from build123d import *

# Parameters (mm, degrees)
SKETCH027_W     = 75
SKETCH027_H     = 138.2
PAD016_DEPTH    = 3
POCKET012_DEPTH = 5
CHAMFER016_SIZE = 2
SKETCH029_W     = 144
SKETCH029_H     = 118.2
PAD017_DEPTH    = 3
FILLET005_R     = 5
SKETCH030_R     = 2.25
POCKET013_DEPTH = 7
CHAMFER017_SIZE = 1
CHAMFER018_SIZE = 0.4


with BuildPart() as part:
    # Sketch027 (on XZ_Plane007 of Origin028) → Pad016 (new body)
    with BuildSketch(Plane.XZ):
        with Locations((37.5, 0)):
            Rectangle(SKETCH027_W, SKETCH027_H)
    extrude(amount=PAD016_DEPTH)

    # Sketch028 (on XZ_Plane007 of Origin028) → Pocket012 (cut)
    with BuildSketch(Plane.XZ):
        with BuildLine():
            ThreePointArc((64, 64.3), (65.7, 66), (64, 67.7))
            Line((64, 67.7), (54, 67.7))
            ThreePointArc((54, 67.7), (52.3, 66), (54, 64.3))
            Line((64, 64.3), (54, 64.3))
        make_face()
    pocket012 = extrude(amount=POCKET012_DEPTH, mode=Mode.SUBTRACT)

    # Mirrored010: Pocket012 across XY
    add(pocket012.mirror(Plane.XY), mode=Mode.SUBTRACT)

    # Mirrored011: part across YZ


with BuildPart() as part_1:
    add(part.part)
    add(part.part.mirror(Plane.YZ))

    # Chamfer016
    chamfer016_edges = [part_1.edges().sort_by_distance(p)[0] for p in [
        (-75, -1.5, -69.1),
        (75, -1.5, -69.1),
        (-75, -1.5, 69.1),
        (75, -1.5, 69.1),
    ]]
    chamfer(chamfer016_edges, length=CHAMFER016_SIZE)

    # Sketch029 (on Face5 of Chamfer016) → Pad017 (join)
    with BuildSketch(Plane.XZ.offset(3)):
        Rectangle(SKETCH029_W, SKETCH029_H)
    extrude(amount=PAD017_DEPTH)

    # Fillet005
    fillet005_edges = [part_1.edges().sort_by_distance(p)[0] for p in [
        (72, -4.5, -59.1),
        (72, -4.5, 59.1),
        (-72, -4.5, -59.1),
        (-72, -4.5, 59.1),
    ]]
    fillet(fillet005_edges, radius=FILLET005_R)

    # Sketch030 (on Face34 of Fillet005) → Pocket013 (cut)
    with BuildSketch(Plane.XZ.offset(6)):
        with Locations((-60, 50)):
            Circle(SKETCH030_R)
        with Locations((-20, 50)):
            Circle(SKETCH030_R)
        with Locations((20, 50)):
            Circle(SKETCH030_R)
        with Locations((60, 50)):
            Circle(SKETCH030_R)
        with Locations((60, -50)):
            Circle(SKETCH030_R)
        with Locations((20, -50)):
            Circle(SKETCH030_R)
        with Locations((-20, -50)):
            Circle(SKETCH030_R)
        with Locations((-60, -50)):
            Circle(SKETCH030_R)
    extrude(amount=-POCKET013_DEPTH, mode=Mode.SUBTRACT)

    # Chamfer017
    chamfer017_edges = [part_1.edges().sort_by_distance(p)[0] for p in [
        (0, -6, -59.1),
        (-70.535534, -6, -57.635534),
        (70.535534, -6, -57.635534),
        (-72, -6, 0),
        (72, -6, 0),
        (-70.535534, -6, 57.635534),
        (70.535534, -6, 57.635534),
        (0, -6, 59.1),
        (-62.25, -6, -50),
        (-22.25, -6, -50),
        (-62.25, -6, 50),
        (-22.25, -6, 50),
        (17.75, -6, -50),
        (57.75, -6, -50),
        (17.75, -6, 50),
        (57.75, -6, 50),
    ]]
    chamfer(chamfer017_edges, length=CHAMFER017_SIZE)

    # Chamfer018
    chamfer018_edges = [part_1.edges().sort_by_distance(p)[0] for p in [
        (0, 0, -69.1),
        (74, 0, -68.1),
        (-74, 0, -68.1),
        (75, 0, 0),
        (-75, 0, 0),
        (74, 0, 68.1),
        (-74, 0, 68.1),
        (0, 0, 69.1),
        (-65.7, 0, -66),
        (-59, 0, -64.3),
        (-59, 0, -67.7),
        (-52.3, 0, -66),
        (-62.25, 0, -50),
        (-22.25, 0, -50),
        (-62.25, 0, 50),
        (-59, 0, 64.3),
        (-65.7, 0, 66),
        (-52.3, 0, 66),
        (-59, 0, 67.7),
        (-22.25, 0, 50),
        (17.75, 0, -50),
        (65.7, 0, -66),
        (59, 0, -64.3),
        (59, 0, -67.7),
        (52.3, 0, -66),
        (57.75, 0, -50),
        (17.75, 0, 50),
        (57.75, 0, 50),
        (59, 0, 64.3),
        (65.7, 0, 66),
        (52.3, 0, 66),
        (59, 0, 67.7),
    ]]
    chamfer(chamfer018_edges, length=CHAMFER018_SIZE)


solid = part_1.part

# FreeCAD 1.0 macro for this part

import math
import FreeCAD as App
import Part
import Sketcher


def edges_at(feature, points):
    """Names of the edges that pass closest to the given points."""
    edges = feature.Shape.Edges
    near = lambda p: min(range(len(edges)), key=lambda i: edges[i].distToShape(Part.Vertex(*p))[0])
    return sorted({f"Edge{near(p) + 1}" for p in points})

doc = App.newDocument("Part")
body = doc.addObject("PartDesign::Body", "Body")

# Sketch on XZ plane
sketch1 = doc.addObject("Sketcher::SketchObject", "Sketch")
body.addObject(sketch1)
sketch1.AttachmentSupport = (doc.XZ_Plane, [""])
sketch1.MapMode = "FlatFace"
sketch1.addGeometry([
    Part.LineSegment(App.Vector(0, 69.1, 0), App.Vector(0, -69.1, 0)),
    Part.LineSegment(App.Vector(0, -69.1, 0), App.Vector(75, -69.1, 0)),
    Part.LineSegment(App.Vector(75, -69.1, 0), App.Vector(75, 69.1, 0)),
    Part.LineSegment(App.Vector(75, 69.1, 0), App.Vector(0, 69.1, 0)),
], False)
sketch1.addConstraint([
    Sketcher.Constraint("Coincident", 0, 2, 1, 1),
    Sketcher.Constraint("Coincident", 1, 2, 2, 1),
    Sketcher.Constraint("Coincident", 2, 2, 3, 1),
    Sketcher.Constraint("Coincident", 3, 2, 0, 1),
    Sketcher.Constraint("Vertical", 0),
    Sketcher.Constraint("Horizontal", 1),
    Sketcher.Constraint("Vertical", 2),
    Sketcher.Constraint("Horizontal", 3),
    Sketcher.Constraint("Symmetric", 0, 2, 3, 2, -1, 1),
    Sketcher.Constraint("DistanceX", 1, 1, 1, 2, 75.0),
    Sketcher.Constraint("DistanceY", 0, 2, 0, 1, 138.2),
])
pad1 = doc.addObject("PartDesign::Pad", "Pad")
body.addObject(pad1)
pad1.Profile = sketch1
pad1.Length = 3

# Sketch on XZ plane
sketch2 = doc.addObject("Sketcher::SketchObject", "Sketch001")
body.addObject(sketch2)
sketch2.AttachmentSupport = (doc.XZ_Plane, [""])
sketch2.MapMode = "FlatFace"
sketch2.addGeometry([
    Part.ArcOfCircle(Part.Circle(App.Vector(64, 66, 0), App.Vector(0, 0, 1), 1.7), math.radians(-90), math.radians(90)),
    Part.LineSegment(App.Vector(64, 67.7, 0), App.Vector(54, 67.7, 0)),
    Part.ArcOfCircle(Part.Circle(App.Vector(54, 66, 0), App.Vector(0, 0, 1), 1.7), math.radians(90), math.radians(270)),
    Part.LineSegment(App.Vector(54, 64.3, 0), App.Vector(64, 64.3, 0)),
], False)
sketch2.addConstraint([
    Sketcher.Constraint("Tangent", 0, 2, 1, 1),
    Sketcher.Constraint("Tangent", 1, 2, 2, 1),
    Sketcher.Constraint("Tangent", 2, 2, 3, 1),
    Sketcher.Constraint("Tangent", 3, 2, 0, 1),
    Sketcher.Constraint("Horizontal", 1),
    Sketcher.Constraint("Horizontal", 3),
    Sketcher.Constraint("Radius", 0, 1.7),
    Sketcher.Constraint("DistanceX", 1, 2, 1, 1, 10.0),
    Sketcher.Constraint("DistanceX", -1, 1, 0, 3, 64.0),
    Sketcher.Constraint("DistanceY", -1, 1, 0, 3, 66.0),
])
pocket1 = doc.addObject("PartDesign::Pocket", "Pocket")
body.addObject(pocket1)
pocket1.Profile = sketch2
pocket1.Length = 5
pocket1.Reversed = True
doc.recompute()

mirrored = doc.addObject("PartDesign::Mirrored", "Mirrored")
body.addObject(mirrored)
mirrored.Originals = [pocket1]
mirrored.MirrorPlane = (doc.XY_Plane, [""])
body.Tip = mirrored
body2 = doc.addObject("PartDesign::Body", "Body001")
doc.recompute()

body2.BaseFeature = body
doc.recompute()

mirroring = doc.addObject("Part::Mirroring", "Mirroring")
mirroring.Source = body
mirroring.Base = App.Vector(0, 0, 0)
mirroring.Normal = App.Vector(1, 0, 0)
body3 = doc.addObject("PartDesign::Body", "Body002")
body3.BaseFeature = mirroring
boolean = doc.addObject("PartDesign::Boolean", "Boolean")
body2.addObject(boolean)
boolean.Type = "Fuse"
boolean.addObjects([body3])
doc.recompute()

chamfer = doc.addObject("PartDesign::Chamfer", "Chamfer")
body2.addObject(chamfer)
chamfer.Base = (boolean, edges_at(boolean, [
    (-75, -1.5, -69.1),
    (75, -1.5, -69.1),
    (-75, -1.5, 69.1),
    (75, -1.5, 69.1),
]))
chamfer.Size = 2

# Sketch on XZ plane
sketch3 = doc.addObject("Sketcher::SketchObject", "Sketch002")
body2.addObject(sketch3)
sketch3.AttachmentSupport = (doc.getObject("XZ_Plane001"), [""])
sketch3.MapMode = "FlatFace"
sketch3.AttachmentOffset = App.Placement(App.Vector(0, 0, 3), App.Rotation())
sketch3.addGeometry([
    Part.LineSegment(App.Vector(-72, 59.1, 0), App.Vector(-72, -59.1, 0)),
    Part.LineSegment(App.Vector(-72, -59.1, 0), App.Vector(72, -59.1, 0)),
    Part.LineSegment(App.Vector(72, -59.1, 0), App.Vector(72, 59.1, 0)),
    Part.LineSegment(App.Vector(72, 59.1, 0), App.Vector(-72, 59.1, 0)),
], False)
sketch3.addConstraint([
    Sketcher.Constraint("Coincident", 0, 2, 1, 1),
    Sketcher.Constraint("Coincident", 1, 2, 2, 1),
    Sketcher.Constraint("Coincident", 2, 2, 3, 1),
    Sketcher.Constraint("Coincident", 3, 2, 0, 1),
    Sketcher.Constraint("Vertical", 0),
    Sketcher.Constraint("Horizontal", 1),
    Sketcher.Constraint("Vertical", 2),
    Sketcher.Constraint("Horizontal", 3),
    Sketcher.Constraint("Symmetric", 0, 2, 2, 2, -1, 1),
    Sketcher.Constraint("DistanceX", 1, 1, 1, 2, 144.0),
    Sketcher.Constraint("DistanceY", 0, 2, 0, 1, 118.2),
])
pad2 = doc.addObject("PartDesign::Pad", "Pad001")
body2.addObject(pad2)
pad2.Profile = sketch3
pad2.Length = 3
doc.recompute()

fillet = doc.addObject("PartDesign::Fillet", "Fillet")
body2.addObject(fillet)
fillet.Base = (pad2, edges_at(pad2, [
    (72, -4.5, -59.1),
    (72, -4.5, 59.1),
    (-72, -4.5, -59.1),
    (-72, -4.5, 59.1),
]))
fillet.Radius = 5

# Sketch on XZ plane
sketch4 = doc.addObject("Sketcher::SketchObject", "Sketch003")
body2.addObject(sketch4)
sketch4.AttachmentSupport = (doc.getObject("XZ_Plane001"), [""])
sketch4.MapMode = "FlatFace"
sketch4.AttachmentOffset = App.Placement(App.Vector(0, 0, 6), App.Rotation())
sketch4.addGeometry([
    Part.Circle(App.Vector(-60, 50, 0), App.Vector(0, 0, 1), 2.25),  # 0
    Part.Circle(App.Vector(-20, 50, 0), App.Vector(0, 0, 1), 2.25),  # 1
    Part.Circle(App.Vector(20, 50, 0), App.Vector(0, 0, 1), 2.25),  # 2
    Part.Circle(App.Vector(60, 50, 0), App.Vector(0, 0, 1), 2.25),  # 3
    Part.Circle(App.Vector(60, -50, 0), App.Vector(0, 0, 1), 2.25),  # 4
    Part.Circle(App.Vector(20, -50, 0), App.Vector(0, 0, 1), 2.25),  # 5
    Part.Circle(App.Vector(-20, -50, 0), App.Vector(0, 0, 1), 2.25),  # 6
    Part.Circle(App.Vector(-60, -50, 0), App.Vector(0, 0, 1), 2.25),  # 7
], False)
sketch4.addConstraint([
    Sketcher.Constraint("Equal", 0, 1),
    Sketcher.Constraint("Equal", 1, 2),
    Sketcher.Constraint("Equal", 2, 3),
    Sketcher.Constraint("Equal", 3, 4),
    Sketcher.Constraint("Equal", 4, 5),
    Sketcher.Constraint("Equal", 5, 6),
    Sketcher.Constraint("Equal", 6, 7),
    Sketcher.Constraint("Symmetric", 0, 3, 4, 3, -1, 1),
    Sketcher.Constraint("Symmetric", 1, 3, 5, 3, -1, 1),
    Sketcher.Constraint("Symmetric", 2, 3, 6, 3, -1, 1),
    Sketcher.Constraint("Symmetric", 3, 3, 7, 3, -1, 1),
    Sketcher.Constraint("Symmetric", 1, 3, 2, 3, -2),
    Sketcher.Constraint("Symmetric", 0, 3, 3, 3, -2),
    Sketcher.Constraint("Horizontal", 0, 3, 1, 3),
    Sketcher.Constraint("Diameter", 0, 4.5),
    Sketcher.Constraint("DistanceX", 0, 3, -1, 1, 60.0),
    Sketcher.Constraint("DistanceY", -1, 1, 0, 3, 50.0),
    Sketcher.Constraint("DistanceX", 1, 3, -1, 1, 20.0),
])
pocket2 = doc.addObject("PartDesign::Pocket", "Pocket001")
body2.addObject(pocket2)
pocket2.Profile = sketch4
pocket2.Length = 7
doc.recompute()

chamfer2 = doc.addObject("PartDesign::Chamfer", "Chamfer001")
body2.addObject(chamfer2)
chamfer2.Base = (pocket2, edges_at(pocket2, [
    (0, -6, -59.1),
    (-70.536, -6, -57.636),
    (70.536, -6, -57.636),
    (-72, -6, 0),
    (72, -6, 0),
    (-70.536, -6, 57.636),
    (70.536, -6, 57.636),
    (0, -6, 59.1),
    (-62.25, -6, -50),
    (-22.25, -6, -50),
    (-62.25, -6, 50),
    (-22.25, -6, 50),
    (17.75, -6, -50),
    (57.75, -6, -50),
    (17.75, -6, 50),
    (57.75, -6, 50),
]))
chamfer2.Size = 1
doc.recompute()

chamfer3 = doc.addObject("PartDesign::Chamfer", "Chamfer002")
body2.addObject(chamfer3)
chamfer3.Base = (chamfer2, edges_at(chamfer2, [
    (0, 0, -69.1),
    (74, 0, -68.1),
    (-74, 0, -68.1),
    (75, 0, 0),
    (-75, 0, 0),
    (74, 0, 68.1),
    (-74, 0, 68.1),
    (0, 0, 69.1),
    (-65.7, 0, -66),
    (-59, 0, -64.3),
    (-59, 0, -67.7),
    (-52.3, 0, -66),
    (-62.25, 0, -50),
    (-22.25, 0, -50),
    (-62.25, 0, 50),
    (-59, 0, 64.3),
    (-65.7, 0, 66),
    (-52.3, 0, 66),
    (-59, 0, 67.7),
    (-22.25, 0, 50),
    (17.75, 0, -50),
    (65.7, 0, -66),
    (59, 0, -64.3),
    (59, 0, -67.7),
    (52.3, 0, -66),
    (57.75, 0, -50),
    (17.75, 0, 50),
    (57.75, 0, 50),
    (59, 0, 64.3),
    (65.7, 0, 66),
    (52.3, 0, 66),
    (59, 0, 67.7),
]))
chamfer3.Size = 0.4
mirroring.Visibility = False

doc.recompute()
